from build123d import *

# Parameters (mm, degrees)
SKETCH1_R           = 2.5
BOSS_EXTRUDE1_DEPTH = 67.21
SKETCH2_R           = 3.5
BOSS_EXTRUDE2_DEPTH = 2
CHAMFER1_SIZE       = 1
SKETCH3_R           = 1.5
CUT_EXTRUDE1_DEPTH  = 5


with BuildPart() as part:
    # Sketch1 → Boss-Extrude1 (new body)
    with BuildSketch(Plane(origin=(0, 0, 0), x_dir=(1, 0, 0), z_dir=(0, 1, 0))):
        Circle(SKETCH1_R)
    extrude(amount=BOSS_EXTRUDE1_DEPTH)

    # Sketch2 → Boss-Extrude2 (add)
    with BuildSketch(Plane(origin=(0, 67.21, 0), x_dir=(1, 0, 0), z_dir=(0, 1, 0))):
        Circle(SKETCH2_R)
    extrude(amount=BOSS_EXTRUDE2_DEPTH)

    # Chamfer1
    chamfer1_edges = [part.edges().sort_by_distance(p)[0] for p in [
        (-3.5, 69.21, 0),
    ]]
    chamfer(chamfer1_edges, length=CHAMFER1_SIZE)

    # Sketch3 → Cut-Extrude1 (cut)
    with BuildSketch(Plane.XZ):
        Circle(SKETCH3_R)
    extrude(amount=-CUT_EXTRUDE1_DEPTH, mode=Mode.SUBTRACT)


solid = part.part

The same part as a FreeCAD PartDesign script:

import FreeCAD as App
import Part
import Sketcher
from FreeCAD import Vector


def edges_at(feature, points):
    """Names of the edges that pass closest to the given points."""
    edges = feature.Shape.Edges
    near = lambda p: min(range(len(edges)), key=lambda i: edges[i].distToShape(Part.Vertex(*p))[0])
    return sorted({f"Edge{near(p) + 1}" for p in points})

doc = App.newDocument("Part")
body = doc.addObject("PartDesign::Body", "Body")

sketch1 = body.newObject("Sketcher::SketchObject", "Sketch")
sketch1.AttachmentSupport = (doc.getObject("XZ_Plane"), [""])
sketch1.MapMode = "FlatFace"
sketch1.addGeometry(Part.Circle(Vector(0, 0, 0), Vector(0, 0, 1), 2.5), False)
sketch1.addConstraint([
    Sketcher.Constraint("Coincident", 0, 3, -1, 1),
    Sketcher.Constraint("Diameter", 0, 5.0),
])
pad1 = body.newObject("PartDesign::Pad", "Pad")
pad1.Profile = sketch1
pad1.Length = 67.21
pad1.Reversed = True

sketch2 = body.newObject("Sketcher::SketchObject", "Sketch001")
sketch2.AttachmentSupport = (doc.getObject("XZ_Plane"), [""])
sketch2.MapMode = "FlatFace"
sketch2.AttachmentOffset = App.Placement(Vector(0, 0, -67.21), App.Rotation())
sketch2.addGeometry(Part.Circle(Vector(0, 0, 0), Vector(0, 0, 1), 3.5), False)
sketch2.addConstraint([
    Sketcher.Constraint("Coincident", 0, 3, -1, 1),
    Sketcher.Constraint("Diameter", 0, 7.0),
])
pad2 = body.newObject("PartDesign::Pad", "Pad001")
pad2.Profile = sketch2
pad2.Length = 2
pad2.Reversed = True
doc.recompute()

chamfer = body.newObject("PartDesign::Chamfer", "Chamfer")
chamfer.Base = (pad2, edges_at(pad2, [(-3.5, 69.21, 0)]))
chamfer.Size = 1

sketch3 = body.newObject("Sketcher::SketchObject", "Sketch002")
sketch3.AttachmentSupport = (doc.getObject("XZ_Plane"), [""])
sketch3.MapMode = "FlatFace"
sketch3.addGeometry(Part.Circle(Vector(0, 0, 0), Vector(0, 0, 1), 1.5), False)
sketch3.addConstraint([
    Sketcher.Constraint("Coincident", 0, 3, -1, 1),
    Sketcher.Constraint("Diameter", 0, 3.0),
])
pocket1 = body.newObject("PartDesign::Pocket", "Pocket")
pocket1.Profile = sketch3
pocket1.Length = 5

doc.recompute()
